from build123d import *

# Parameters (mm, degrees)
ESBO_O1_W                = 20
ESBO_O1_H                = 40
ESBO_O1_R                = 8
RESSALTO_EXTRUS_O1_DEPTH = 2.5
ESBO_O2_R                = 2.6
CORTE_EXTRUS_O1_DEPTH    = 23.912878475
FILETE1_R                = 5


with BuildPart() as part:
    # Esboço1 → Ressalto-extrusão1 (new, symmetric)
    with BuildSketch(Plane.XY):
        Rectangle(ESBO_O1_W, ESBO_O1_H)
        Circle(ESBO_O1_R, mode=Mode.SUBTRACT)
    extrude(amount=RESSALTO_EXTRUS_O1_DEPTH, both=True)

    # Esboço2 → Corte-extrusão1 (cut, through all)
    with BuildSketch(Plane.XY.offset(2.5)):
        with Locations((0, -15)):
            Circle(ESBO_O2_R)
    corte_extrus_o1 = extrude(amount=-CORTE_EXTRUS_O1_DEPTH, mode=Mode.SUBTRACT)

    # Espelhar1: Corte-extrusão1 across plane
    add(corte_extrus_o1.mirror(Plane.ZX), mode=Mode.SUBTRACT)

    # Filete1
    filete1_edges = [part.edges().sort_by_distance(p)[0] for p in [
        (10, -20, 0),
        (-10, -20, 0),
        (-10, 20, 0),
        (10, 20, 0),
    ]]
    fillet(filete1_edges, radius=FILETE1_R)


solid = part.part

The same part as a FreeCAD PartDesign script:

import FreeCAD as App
import Part
import Sketcher
from FreeCAD import Vector
Q = App.Units.Quantity


def edges_at(feature, points):
    """Names of the edges that pass closest to the given points."""
    edges = feature.Shape.Edges
    near = lambda p: min(range(len(edges)), key=lambda i: edges[i].distToShape(Part.Vertex(*p))[0])
    return sorted({f"Edge{near(p) + 1}" for p in points})

doc = App.newDocument("Part")
body = doc.addObject("PartDesign::Body", "Body")

sketch1 = doc.addObject("Sketcher::SketchObject", "Sketch")
body.addObject(sketch1)
sketch1.AttachmentSupport = (doc.XY_Plane, [""])
sketch1.MapMode = "FlatFace"
sketch1.addGeometry([
    Part.LineSegment(Vector(-10, 20, 0), Vector(-10, -20, 0)),
    Part.LineSegment(Vector(-10, -20, 0), Vector(10, -20, 0)),
    Part.LineSegment(Vector(10, -20, 0), Vector(10, 20, 0)),
    Part.LineSegment(Vector(10, 20, 0), Vector(-10, 20, 0)),
    Part.Circle(Vector(0, 0, 0), Vector(0, 0, 1), 8),
], False)
sketch1.addConstraint([
    Sketcher.Constraint("Coincident", 0, 2, 1, 1),
    Sketcher.Constraint("Coincident", 1, 2, 2, 1),
    Sketcher.Constraint("Coincident", 2, 2, 3, 1),
    Sketcher.Constraint("Coincident", 3, 2, 0, 1),
    Sketcher.Constraint("Vertical", 0),
    Sketcher.Constraint("Horizontal", 1),
    Sketcher.Constraint("Vertical", 2),
    Sketcher.Constraint("Horizontal", 3),
    Sketcher.Constraint("Coincident", 4, 3, -1, 1),
    Sketcher.Constraint("Symmetric", 0, 2, 2, 2, -1, 1),
    Sketcher.Constraint("Diameter", 4, Q("16 mm")),
    Sketcher.Constraint("DistanceX", 1, 1, 1, 2, Q("20 mm")),
    Sketcher.Constraint("DistanceY", 0, 2, 0, 1, Q("40 mm")),
])
pad1 = doc.addObject("PartDesign::Pad", "Pad")
body.addObject(pad1)
pad1.Profile = sketch1
pad1.Length = 5
pad1.Midplane = True

sketch2 = doc.addObject("Sketcher::SketchObject", "Sketch001")
body.addObject(sketch2)
sketch2.AttachmentSupport = (doc.XY_Plane, [""])
sketch2.MapMode = "FlatFace"
sketch2.AttachmentOffset = App.Placement(Vector(0, 0, 2.5), App.Rotation())
sketch2.addGeometry(Part.Circle(Vector(0, -15, 0), Vector(0, 0, 1), 2.6), False)
sketch2.addConstraint([
    Sketcher.Constraint("PointOnObject", 0, 3, -2),
    Sketcher.Constraint("Diameter", 0, Q("5.2 mm")),
    Sketcher.Constraint("DistanceY", 0, 3, -1, 1, Q("15 mm")),
])
pocket1 = doc.addObject("PartDesign::Pocket", "Pocket")
body.addObject(pocket1)
pocket1.Profile = sketch2
pocket1.Type = "ThroughAll"
doc.recompute()

mirrored = doc.addObject("PartDesign::Mirrored", "Mirrored")
body.addObject(mirrored)
mirrored.Originals = [pocket1]
mirrored.MirrorPlane = (doc.XZ_Plane, [""])
body.Tip = mirrored
doc.recompute()

fillet = doc.addObject("PartDesign::Fillet", "Fillet")
body.addObject(fillet)
fillet.Base = (mirrored, edges_at(mirrored, [
    (10, -20, 0),
    (-10, -20, 0),
    (-10, 20, 0),
    (10, 20, 0),
]))
fillet.Radius = 5

doc.recompute()
